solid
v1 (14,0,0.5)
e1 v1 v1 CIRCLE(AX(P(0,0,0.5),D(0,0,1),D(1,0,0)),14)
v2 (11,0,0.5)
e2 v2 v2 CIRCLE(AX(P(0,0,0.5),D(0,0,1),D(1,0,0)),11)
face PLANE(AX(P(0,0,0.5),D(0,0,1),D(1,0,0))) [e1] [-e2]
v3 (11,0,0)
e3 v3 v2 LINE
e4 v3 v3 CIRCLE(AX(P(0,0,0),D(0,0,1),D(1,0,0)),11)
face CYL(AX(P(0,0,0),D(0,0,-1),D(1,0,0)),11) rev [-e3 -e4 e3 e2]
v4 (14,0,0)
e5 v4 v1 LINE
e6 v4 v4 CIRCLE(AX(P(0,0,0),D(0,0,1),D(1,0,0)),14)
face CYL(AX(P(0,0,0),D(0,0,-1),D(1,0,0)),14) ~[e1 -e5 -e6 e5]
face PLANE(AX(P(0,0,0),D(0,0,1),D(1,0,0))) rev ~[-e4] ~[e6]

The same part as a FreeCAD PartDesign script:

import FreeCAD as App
import Part
import Sketcher
from FreeCAD import Vector

doc = App.newDocument("Part")
body = doc.addObject("PartDesign::Body", "Body")

# Sketch on XY plane
sketch1 = body.newObject("Sketcher::SketchObject", "Sketch")
sketch1.AttachmentSupport = (doc.getObject("XY_Plane"), [""])
sketch1.MapMode = "FlatFace"
sketch1.addGeometry(Part.Circle(Vector(0, 0, 0), Vector(0, 0, 1), 14), False)
sketch1.addGeometry(Part.Circle(Vector(0, 0, 0), Vector(0, 0, 1), 11), False)
sketch1.addConstraint(Sketcher.Constraint("Coincident", 0, 3, -1, 1))
sketch1.addConstraint(Sketcher.Constraint("Coincident", 1, 3, -1, 1))
sketch1.addConstraint(Sketcher.Constraint("Diameter", 0, 28.0))
sketch1.addConstraint(Sketcher.Constraint("Diameter", 1, 22.0))
pad1 = body.newObject("PartDesign::Pad", "Pad")
pad1.Profile = sketch1
pad1.Length = 0.5

doc.recompute()
